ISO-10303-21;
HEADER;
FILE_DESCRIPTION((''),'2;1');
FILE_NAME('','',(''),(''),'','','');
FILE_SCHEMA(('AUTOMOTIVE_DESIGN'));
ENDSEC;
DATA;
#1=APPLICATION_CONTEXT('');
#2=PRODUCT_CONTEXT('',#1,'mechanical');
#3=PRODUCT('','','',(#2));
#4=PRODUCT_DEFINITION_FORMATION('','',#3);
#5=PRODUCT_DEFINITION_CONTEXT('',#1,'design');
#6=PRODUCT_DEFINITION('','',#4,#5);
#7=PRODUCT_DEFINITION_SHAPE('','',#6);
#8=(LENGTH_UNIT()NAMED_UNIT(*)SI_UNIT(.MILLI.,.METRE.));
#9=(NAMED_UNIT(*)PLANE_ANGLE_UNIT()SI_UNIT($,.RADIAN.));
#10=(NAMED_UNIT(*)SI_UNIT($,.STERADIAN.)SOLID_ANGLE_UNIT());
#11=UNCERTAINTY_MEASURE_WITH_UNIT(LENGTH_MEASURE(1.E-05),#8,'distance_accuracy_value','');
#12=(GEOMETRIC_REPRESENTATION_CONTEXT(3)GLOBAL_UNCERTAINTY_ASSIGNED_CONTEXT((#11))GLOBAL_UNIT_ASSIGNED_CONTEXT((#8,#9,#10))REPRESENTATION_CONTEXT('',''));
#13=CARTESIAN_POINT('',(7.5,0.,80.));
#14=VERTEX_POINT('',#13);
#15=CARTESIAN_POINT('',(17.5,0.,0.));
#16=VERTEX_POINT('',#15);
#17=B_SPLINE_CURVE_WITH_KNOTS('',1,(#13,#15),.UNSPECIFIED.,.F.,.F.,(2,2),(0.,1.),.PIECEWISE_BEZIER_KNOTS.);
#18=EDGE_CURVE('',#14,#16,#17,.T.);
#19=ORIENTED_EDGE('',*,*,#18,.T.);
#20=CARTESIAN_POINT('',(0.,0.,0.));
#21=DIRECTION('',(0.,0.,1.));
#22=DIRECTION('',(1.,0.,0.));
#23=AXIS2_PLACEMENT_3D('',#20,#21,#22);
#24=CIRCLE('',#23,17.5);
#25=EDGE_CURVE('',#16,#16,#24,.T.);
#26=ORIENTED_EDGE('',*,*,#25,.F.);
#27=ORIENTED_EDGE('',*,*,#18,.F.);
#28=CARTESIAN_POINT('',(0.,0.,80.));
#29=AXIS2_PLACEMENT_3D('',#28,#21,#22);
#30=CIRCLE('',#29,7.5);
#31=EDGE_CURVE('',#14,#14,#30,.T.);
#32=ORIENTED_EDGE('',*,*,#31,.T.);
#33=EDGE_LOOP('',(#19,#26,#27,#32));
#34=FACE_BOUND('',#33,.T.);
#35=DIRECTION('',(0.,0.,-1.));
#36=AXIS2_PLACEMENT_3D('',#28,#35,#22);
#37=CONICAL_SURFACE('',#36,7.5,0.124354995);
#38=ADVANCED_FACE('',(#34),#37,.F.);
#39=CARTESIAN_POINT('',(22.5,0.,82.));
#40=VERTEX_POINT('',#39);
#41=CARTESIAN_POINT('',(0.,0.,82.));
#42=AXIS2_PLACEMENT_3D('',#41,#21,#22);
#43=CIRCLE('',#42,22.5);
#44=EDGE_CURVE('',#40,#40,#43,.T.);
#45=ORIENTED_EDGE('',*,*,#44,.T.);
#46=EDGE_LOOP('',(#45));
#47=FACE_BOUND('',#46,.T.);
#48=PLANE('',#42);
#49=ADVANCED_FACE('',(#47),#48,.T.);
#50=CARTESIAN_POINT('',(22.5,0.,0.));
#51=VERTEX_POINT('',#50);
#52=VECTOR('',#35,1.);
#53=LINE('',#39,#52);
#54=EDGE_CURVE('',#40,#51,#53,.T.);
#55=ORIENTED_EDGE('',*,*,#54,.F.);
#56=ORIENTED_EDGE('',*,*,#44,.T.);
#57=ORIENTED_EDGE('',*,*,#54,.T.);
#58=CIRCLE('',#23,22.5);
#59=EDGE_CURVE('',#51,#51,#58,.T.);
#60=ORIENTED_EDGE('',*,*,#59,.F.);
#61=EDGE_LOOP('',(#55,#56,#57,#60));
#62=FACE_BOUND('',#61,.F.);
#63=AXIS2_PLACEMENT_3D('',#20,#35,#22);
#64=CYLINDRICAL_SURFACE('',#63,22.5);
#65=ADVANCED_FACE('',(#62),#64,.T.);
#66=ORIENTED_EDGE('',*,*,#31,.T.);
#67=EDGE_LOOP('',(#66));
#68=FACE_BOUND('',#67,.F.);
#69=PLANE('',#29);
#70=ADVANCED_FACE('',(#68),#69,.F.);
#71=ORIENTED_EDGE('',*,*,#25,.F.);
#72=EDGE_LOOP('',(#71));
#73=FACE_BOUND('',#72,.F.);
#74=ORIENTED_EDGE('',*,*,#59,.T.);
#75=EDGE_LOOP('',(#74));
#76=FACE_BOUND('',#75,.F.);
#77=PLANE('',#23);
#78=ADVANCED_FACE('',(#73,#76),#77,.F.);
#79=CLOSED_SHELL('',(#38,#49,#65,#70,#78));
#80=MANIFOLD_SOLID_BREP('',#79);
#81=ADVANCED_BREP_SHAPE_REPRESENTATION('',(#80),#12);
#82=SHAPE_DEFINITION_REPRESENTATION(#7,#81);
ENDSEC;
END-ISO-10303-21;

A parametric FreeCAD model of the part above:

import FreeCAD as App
import Part
import Sketcher

doc = App.newDocument("Part")
body = doc.addObject("PartDesign::Body", "Body")

# Sketch on XY plane
sketch1 = doc.addObject("Sketcher::SketchObject", "Sketch")
body.addObject(sketch1)
sketch1.AttachmentSupport = (doc.XY_Plane, [""])
sketch1.MapMode = "FlatFace"
sketch1.addGeometry(Part.Circle(App.Vector(0, 0, 0), App.Vector(0, 0, 1), 22.5), False)
sketch1.addConstraint(Sketcher.Constraint("Coincident", 0, 3, -1, 1))
sketch1.addConstraint(Sketcher.Constraint("Diameter", 0, 45.0))
pad1 = doc.addObject("PartDesign::Pad", "Pad")
body.addObject(pad1)
pad1.Profile = sketch1
pad1.Length = 80

# Sketch on XY plane
sketch2 = doc.addObject("Sketcher::SketchObject", "Sketch001")
body.addObject(sketch2)
sketch2.AttachmentSupport = (doc.XY_Plane, [""])
sketch2.MapMode = "FlatFace"
sketch2.AttachmentOffset = App.Placement(App.Vector(0, 0, 80), App.Rotation())
sketch2.addGeometry(Part.Circle(App.Vector(0, 0, 0), App.Vector(0, 0, 1), 7.5), False)
sketch2.addConstraint(Sketcher.Constraint("Coincident", 0, 3, -1, 1))
sketch2.addConstraint(Sketcher.Constraint("Diameter", 0, 15.0))

# Sketch on XY plane
sketch3 = doc.addObject("Sketcher::SketchObject", "Sketch002")
body.addObject(sketch3)
sketch3.AttachmentSupport = (doc.XY_Plane, [""])
sketch3.MapMode = "FlatFace"
sketch3.addGeometry(Part.Circle(App.Vector(0, 0, 0), App.Vector(0, 0, 1), 17.5), False)
sketch3.addConstraint(Sketcher.Constraint("Coincident", 0, 3, -1, 1))
sketch3.addConstraint(Sketcher.Constraint("Diameter", 0, 35.0))

subtractiveloft = doc.addObject("PartDesign::SubtractiveLoft", "SubtractiveLoft")
body.addObject(subtractiveloft)
subtractiveloft.Profile = sketch2
subtractiveloft.Sections = [sketch3]

# Sketch on XY plane
sketch4 = doc.addObject("Sketcher::SketchObject", "Sketch003")
body.addObject(sketch4)
sketch4.AttachmentSupport = (doc.XY_Plane, [""])
sketch4.MapMode = "FlatFace"
sketch4.AttachmentOffset = App.Placement(App.Vector(0, 0, 80), App.Rotation())
sketch4.addGeometry(Part.Circle(App.Vector(0, 0, 0), App.Vector(0, 0, 1), 22.5), False)
sketch4.addConstraint(Sketcher.Constraint("Coincident", 0, 3, -1, 1))
sketch4.addConstraint(Sketcher.Constraint("Diameter", 0, 45.0))
pad2 = doc.addObject("PartDesign::Pad", "Pad001")
body.addObject(pad2)
pad2.Profile = sketch4
pad2.Length = 2

doc.recompute()
